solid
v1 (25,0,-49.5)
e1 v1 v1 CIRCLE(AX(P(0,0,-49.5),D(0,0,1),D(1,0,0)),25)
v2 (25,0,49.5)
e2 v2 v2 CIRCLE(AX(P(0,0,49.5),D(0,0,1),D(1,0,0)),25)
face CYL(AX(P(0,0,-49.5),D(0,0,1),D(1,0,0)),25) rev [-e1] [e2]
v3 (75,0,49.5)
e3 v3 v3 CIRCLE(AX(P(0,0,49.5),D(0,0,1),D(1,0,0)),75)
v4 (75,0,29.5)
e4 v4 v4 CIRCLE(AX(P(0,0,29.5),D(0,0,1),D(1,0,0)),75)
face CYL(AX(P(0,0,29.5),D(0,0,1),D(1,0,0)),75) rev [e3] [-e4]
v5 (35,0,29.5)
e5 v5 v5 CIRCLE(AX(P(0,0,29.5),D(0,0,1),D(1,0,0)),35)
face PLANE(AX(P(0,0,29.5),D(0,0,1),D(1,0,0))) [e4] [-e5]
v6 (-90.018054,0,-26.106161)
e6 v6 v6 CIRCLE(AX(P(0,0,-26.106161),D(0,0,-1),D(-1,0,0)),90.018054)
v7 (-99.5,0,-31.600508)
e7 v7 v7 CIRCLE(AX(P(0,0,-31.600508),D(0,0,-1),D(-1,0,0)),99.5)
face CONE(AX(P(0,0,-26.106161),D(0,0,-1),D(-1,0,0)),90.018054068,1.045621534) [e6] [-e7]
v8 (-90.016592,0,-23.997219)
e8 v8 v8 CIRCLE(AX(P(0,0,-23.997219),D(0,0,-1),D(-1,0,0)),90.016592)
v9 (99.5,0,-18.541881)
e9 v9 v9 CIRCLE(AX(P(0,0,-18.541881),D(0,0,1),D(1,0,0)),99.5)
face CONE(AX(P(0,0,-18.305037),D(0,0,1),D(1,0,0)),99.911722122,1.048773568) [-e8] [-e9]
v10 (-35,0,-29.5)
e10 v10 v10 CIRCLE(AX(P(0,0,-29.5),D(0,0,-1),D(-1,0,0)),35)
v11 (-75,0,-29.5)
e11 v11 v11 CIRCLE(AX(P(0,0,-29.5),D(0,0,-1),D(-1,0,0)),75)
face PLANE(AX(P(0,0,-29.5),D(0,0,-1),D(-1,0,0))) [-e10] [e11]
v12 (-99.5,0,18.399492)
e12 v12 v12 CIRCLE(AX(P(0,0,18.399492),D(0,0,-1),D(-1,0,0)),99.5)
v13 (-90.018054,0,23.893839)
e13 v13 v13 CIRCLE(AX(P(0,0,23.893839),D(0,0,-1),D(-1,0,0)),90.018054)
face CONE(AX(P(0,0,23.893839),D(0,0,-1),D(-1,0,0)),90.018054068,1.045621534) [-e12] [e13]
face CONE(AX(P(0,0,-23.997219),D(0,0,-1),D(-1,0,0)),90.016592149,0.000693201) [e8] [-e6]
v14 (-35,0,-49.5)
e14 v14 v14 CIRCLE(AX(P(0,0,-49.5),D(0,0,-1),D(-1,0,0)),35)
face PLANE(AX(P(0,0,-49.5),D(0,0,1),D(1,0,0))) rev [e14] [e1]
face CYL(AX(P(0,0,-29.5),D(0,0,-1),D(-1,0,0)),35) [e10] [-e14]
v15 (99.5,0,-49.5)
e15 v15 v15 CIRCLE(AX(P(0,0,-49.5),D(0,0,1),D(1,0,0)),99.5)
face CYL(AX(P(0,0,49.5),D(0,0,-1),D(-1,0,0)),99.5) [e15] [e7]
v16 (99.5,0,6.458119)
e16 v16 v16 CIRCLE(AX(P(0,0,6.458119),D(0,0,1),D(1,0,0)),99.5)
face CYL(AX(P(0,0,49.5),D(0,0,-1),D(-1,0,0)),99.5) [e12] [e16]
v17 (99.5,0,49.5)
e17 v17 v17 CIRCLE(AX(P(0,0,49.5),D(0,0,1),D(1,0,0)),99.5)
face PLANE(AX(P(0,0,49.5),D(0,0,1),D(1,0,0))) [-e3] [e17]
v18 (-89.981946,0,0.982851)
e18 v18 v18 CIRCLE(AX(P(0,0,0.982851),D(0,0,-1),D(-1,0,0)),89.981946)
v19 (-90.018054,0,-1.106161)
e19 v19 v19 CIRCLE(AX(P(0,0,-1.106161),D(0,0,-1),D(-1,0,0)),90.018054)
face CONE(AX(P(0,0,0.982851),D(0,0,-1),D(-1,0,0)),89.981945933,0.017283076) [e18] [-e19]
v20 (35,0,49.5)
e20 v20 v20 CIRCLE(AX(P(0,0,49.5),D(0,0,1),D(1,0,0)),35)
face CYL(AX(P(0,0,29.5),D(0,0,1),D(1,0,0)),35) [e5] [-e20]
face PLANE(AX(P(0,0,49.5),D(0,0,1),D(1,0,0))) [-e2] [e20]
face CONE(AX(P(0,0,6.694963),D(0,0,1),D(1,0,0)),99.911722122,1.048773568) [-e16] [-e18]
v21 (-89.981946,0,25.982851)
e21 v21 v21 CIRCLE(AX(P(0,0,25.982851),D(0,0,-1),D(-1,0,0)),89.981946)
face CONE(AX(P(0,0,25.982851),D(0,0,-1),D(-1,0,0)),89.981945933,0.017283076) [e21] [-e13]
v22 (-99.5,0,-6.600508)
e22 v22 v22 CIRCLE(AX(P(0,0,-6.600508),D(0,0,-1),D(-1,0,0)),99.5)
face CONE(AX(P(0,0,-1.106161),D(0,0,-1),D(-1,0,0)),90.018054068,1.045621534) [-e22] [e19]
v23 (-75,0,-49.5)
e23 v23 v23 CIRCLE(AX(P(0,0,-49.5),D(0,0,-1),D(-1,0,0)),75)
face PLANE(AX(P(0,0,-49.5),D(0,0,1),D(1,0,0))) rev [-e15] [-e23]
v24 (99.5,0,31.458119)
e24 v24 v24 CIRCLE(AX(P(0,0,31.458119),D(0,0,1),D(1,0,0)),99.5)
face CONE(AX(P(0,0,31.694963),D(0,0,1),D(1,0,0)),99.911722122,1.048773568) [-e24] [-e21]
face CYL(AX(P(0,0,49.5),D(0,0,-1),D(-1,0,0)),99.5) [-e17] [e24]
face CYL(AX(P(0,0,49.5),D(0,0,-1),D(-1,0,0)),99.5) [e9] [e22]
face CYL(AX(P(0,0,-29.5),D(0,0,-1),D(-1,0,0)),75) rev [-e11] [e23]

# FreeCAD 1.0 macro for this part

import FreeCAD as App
import Part
import Sketcher
Q = App.Units.Quantity


def add_polygon(sketch, points):
    """Adds a closed chain of lines whose ends are joined by coincident constraints."""
    first, n = sketch.GeometryCount, len(points)
    for a, b in zip(points, points[1:] + points[:1]):
        sketch.addGeometry(Part.LineSegment(App.Vector(*a, 0), App.Vector(*b, 0)), False)
    for i in range(n):
        sketch.addConstraint(Sketcher.Constraint("Coincident", first + i, 2, first + (i + 1) % n, 1))

doc = App.newDocument("Part")
body = doc.addObject("PartDesign::Body", "Body")

sketch1 = body.newObject("Sketcher::SketchObject", "Sketch")
sketch1.AttachmentSupport = (doc.getObject("XY_Plane"), [""])
sketch1.MapMode = "FlatFace"
sketch1.addGeometry(Part.Circle(App.Vector(0, 0, 0), App.Vector(0, 0, 1), 99.5), False)
sketch1.addConstraint([
    Sketcher.Constraint("Coincident", 0, 3, -1, 1),
    Sketcher.Constraint("Diameter", 0, Q("199 mm")),
])
pad1 = body.newObject("PartDesign::Pad", "Pad")
pad1.Profile = sketch1
pad1.Length = 99
pad1.Midplane = True

sketch2 = body.newObject("Sketcher::SketchObject", "Sketch001")
sketch2.AttachmentSupport = (doc.getObject("XZ_Plane"), [""])
sketch2.MapMode = "FlatFace"
add_polygon(sketch2, [(-99.911722, 31.694963), (-89.981946, 25.982851), (-90.018054, 23.893839), (-99.915568, 18.15869)])
add_polygon(sketch2, [(-99.911722, 6.694963), (-89.981946, 0.982851), (-90.018054, -1.106161), (-99.929776, -6.849543)])
add_polygon(sketch2, [(-99.911722, -18.305037), (-90.016592, -23.997219), (-90.018054, -26.106161), (-99.929776, -31.849543)])
sketch2.addConstraint([
    Sketcher.Constraint("Parallel", 0, 4),
    Sketcher.Constraint("Parallel", 1, 5),
    Sketcher.Constraint("Parallel", 2, 6),
    Sketcher.Constraint("Parallel", 4, 8),
    Sketcher.Constraint("Parallel", 6, 10),
    Sketcher.Constraint("Parallel", 7, 11),
    Sketcher.Constraint("Vertical", 0, 2, 4, 2),
    Sketcher.Constraint("Vertical", 1, 2, 5, 2),
    Sketcher.Constraint("Vertical", 3, 2, 7, 2),
    Sketcher.Constraint("Vertical", 5, 2, 9, 2),
    Sketcher.Constraint("Vertical", 6, 2, 10, 2),
    Sketcher.Constraint("Equal", 4, 6),
    Sketcher.Constraint("Equal", 7, 11),
    Sketcher.Constraint("DistanceY", 4, 2, 0, 2, Q("25 mm")),
    Sketcher.Constraint("DistanceY", 9, 2, 5, 2, Q("25 mm")),
    Sketcher.Constraint("Distance", 0, Q("11.455509 mm")),
    Sketcher.Constraint("Distance", 8, Q("11.415539 mm")),
    Sketcher.Constraint("Distance", 9, Q("2.108942 mm")),
    Sketcher.Constraint("DistanceY", -1, 1, 0, 2, Q("25.982851 mm")),
    Sketcher.Constraint("DistanceX", 2, 2, -1, 1, Q("99.915568 mm")),
    Sketcher.Constraint("DistanceY", -1, 1, 2, 2, Q("18.15869 mm")),
    Sketcher.Constraint("DistanceX", 1, 2, 0, 2, Q("0.036108 mm")),
    Sketcher.Constraint("DistanceY", 0, 2, 3, 2, Q("5.712112 mm")),
    Sketcher.Constraint("DistanceX", 6, 2, 4, 2, Q("9.94783 mm")),
])
groove = body.newObject("PartDesign::Groove", "Groove")
groove.Profile = sketch2
groove.ReferenceAxis = (sketch2, ["V_Axis"])
groove.Angle = 360

sketch3 = body.newObject("Sketcher::SketchObject", "Sketch002")
sketch3.AttachmentSupport = (doc.getObject("XY_Plane"), [""])
sketch3.MapMode = "FlatFace"
sketch3.AttachmentOffset = App.Placement(App.Vector(0, 0, -49.5), App.Rotation())
sketch3.addGeometry([
    Part.Circle(App.Vector(0, 0, 0), App.Vector(0, 0, 1), 75),
    Part.Circle(App.Vector(0, 0, 0), App.Vector(0, 0, 1), 35),
], False)
sketch3.addConstraint([
    Sketcher.Constraint("Coincident", 0, 3, -1, 1),
    Sketcher.Constraint("Coincident", 1, 3, -1, 1),
    Sketcher.Constraint("Diameter", 0, Q("150 mm")),
    Sketcher.Constraint("Diameter", 1, Q("70 mm")),
])
pocket1 = body.newObject("PartDesign::Pocket", "Pocket")
pocket1.Profile = sketch3
pocket1.Length = 20
pocket1.Reversed = True

sketch4 = body.newObject("Sketcher::SketchObject", "Sketch003")
sketch4.AttachmentSupport = (doc.getObject("XY_Plane"), [""])
sketch4.MapMode = "FlatFace"
sketch4.AttachmentOffset = App.Placement(App.Vector(0, 0, 49.5), App.Rotation())
sketch4.addGeometry(Part.Circle(App.Vector(0, 0, 0), App.Vector(0, 0, 1), 25), False)
sketch4.addConstraint([
    Sketcher.Constraint("Coincident", 0, 3, -1, 1),
    Sketcher.Constraint("Diameter", 0, Q("50 mm")),
])
pocket2 = body.newObject("PartDesign::Pocket", "Pocket001")
pocket2.Profile = sketch4
pocket2.Type = "ThroughAll"
pocket2.Midplane = True

sketch5 = body.newObject("Sketcher::SketchObject", "Sketch004")
sketch5.AttachmentSupport = (doc.getObject("XY_Plane"), [""])
sketch5.MapMode = "FlatFace"
sketch5.AttachmentOffset = App.Placement(App.Vector(0, 0, 49.5), App.Rotation())
sketch5.addGeometry([
    Part.Circle(App.Vector(0, 0, 0), App.Vector(0, 0, 1), 75),
    Part.Circle(App.Vector(0, 0, 0), App.Vector(0, 0, 1), 35),
], False)
sketch5.addConstraint([
    Sketcher.Constraint("Coincident", 0, 3, -1, 1),
    Sketcher.Constraint("Coincident", 1, 3, -1, 1),
    Sketcher.Constraint("Diameter", 0, Q("150 mm")),
    Sketcher.Constraint("Diameter", 1, Q("70 mm")),
])
pocket3 = body.newObject("PartDesign::Pocket", "Pocket002")
pocket3.Profile = sketch5
pocket3.Length = 20

doc.recompute()
